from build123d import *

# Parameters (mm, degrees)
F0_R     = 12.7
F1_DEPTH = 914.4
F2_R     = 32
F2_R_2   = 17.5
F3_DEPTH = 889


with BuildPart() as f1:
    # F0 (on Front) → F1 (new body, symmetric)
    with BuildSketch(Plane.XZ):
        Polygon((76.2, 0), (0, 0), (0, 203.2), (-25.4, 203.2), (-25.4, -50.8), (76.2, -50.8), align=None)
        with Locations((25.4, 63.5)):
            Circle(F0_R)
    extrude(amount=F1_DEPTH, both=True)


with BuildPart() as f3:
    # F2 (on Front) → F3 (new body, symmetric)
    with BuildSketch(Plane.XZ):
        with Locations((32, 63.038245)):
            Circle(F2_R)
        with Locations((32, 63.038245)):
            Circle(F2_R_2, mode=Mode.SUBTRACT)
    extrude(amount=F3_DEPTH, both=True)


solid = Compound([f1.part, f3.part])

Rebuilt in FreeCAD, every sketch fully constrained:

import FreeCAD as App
import Part
import Sketcher
from FreeCAD import Vector
Q = App.Units.Quantity

doc = App.newDocument("Part")
body = doc.addObject("PartDesign::Body", "Body")
body.AllowCompound = True

# Sketch on XZ plane
sketch1 = doc.addObject("Sketcher::SketchObject", "Sketch")
body.addObject(sketch1)
sketch1.AttachmentSupport = (doc.XZ_Plane, [""])
sketch1.MapMode = "FlatFace"
sketch1.addGeometry([
    Part.LineSegment(Vector(76, 0, 0), Vector(0, 0, 0)),  # 0
    Part.LineSegment(Vector(0, 0, 0), Vector(0, 203, 0)),  # 1
    Part.LineSegment(Vector(0, 203, 0), Vector(-25, 203, 0)),  # 2
    Part.LineSegment(Vector(-25, 203, 0), Vector(-25, -51, 0)),  # 3
    Part.LineSegment(Vector(-25, -51, 0), Vector(76, -51, 0)),  # 4
    Part.LineSegment(Vector(76, -51, 0), Vector(76, 0, 0)),  # 5
    Part.Circle(Vector(25, 64, 0), Vector(0, 0, 1), 13),  # 6
], False)
sketch1.addConstraint([
    Sketcher.Constraint("Coincident", 0, 2, 1, 1),
    Sketcher.Constraint("Coincident", 1, 2, 2, 1),
    Sketcher.Constraint("Coincident", 2, 2, 3, 1),
    Sketcher.Constraint("Coincident", 3, 2, 4, 1),
    Sketcher.Constraint("Coincident", 4, 2, 5, 1),
    Sketcher.Constraint("Coincident", 5, 2, 0, 1),
    Sketcher.Constraint("Horizontal", 0),
    Sketcher.Constraint("Vertical", 1),
    Sketcher.Constraint("Horizontal", 2),
    Sketcher.Constraint("Vertical", 3),
    Sketcher.Constraint("Horizontal", 4),
    Sketcher.Constraint("Vertical", 5),
    Sketcher.Constraint("Coincident", 0, 2, -1, 1),
    Sketcher.Constraint("Diameter", 6, Q("1 in")),
    Sketcher.Constraint("DistanceX", 0, 2, 0, 1, Q("3 in")),
    Sketcher.Constraint("DistanceX", 2, 2, 2, 1, Q("1 in")),
    Sketcher.Constraint("DistanceY", 1, 1, 1, 2, Q("8 in")),
    Sketcher.Constraint("DistanceY", 3, 2, 3, 1, Q("10 in")),
    Sketcher.Constraint("DistanceX", -1, 1, 6, 3, Q("1 in")),
    Sketcher.Constraint("DistanceY", -1, 1, 6, 3, Q("2.5 in")),
])
pad1 = doc.addObject("PartDesign::Pad", "Pad")
body.addObject(pad1)
pad1.Profile = sketch1
pad1.Length = Q("72 in")
pad1.Midplane = True
body2 = doc.addObject("PartDesign::Body", "Body001")

# Sketch on XZ plane
sketch2 = doc.addObject("Sketcher::SketchObject", "Sketch001")
body2.addObject(sketch2)
sketch2.AttachmentSupport = (doc.getObject("XZ_Plane001"), [""])
sketch2.MapMode = "FlatFace"
sketch2.addGeometry([
    Part.Circle(Vector(32, 63, 0), Vector(0, 0, 1), 32),
    Part.Circle(Vector(32, 63, 0), Vector(0, 0, 1), 18),
], False)
sketch2.addConstraint([
    Sketcher.Constraint("Coincident", 1, 3, 0, 3),
    Sketcher.Constraint("Diameter", 0, 64.0),
    Sketcher.Constraint("Diameter", 1, 35.0),
    Sketcher.Constraint("DistanceX", -1, 1, 0, 3, 32.0),
    Sketcher.Constraint("DistanceY", -1, 1, 0, 3, 63.038245),
])
pad2 = doc.addObject("PartDesign::Pad", "Pad001")
body2.addObject(pad2)
pad2.Profile = sketch2
pad2.Length = Q("70 in")
pad2.Midplane = True

doc.recompute()
